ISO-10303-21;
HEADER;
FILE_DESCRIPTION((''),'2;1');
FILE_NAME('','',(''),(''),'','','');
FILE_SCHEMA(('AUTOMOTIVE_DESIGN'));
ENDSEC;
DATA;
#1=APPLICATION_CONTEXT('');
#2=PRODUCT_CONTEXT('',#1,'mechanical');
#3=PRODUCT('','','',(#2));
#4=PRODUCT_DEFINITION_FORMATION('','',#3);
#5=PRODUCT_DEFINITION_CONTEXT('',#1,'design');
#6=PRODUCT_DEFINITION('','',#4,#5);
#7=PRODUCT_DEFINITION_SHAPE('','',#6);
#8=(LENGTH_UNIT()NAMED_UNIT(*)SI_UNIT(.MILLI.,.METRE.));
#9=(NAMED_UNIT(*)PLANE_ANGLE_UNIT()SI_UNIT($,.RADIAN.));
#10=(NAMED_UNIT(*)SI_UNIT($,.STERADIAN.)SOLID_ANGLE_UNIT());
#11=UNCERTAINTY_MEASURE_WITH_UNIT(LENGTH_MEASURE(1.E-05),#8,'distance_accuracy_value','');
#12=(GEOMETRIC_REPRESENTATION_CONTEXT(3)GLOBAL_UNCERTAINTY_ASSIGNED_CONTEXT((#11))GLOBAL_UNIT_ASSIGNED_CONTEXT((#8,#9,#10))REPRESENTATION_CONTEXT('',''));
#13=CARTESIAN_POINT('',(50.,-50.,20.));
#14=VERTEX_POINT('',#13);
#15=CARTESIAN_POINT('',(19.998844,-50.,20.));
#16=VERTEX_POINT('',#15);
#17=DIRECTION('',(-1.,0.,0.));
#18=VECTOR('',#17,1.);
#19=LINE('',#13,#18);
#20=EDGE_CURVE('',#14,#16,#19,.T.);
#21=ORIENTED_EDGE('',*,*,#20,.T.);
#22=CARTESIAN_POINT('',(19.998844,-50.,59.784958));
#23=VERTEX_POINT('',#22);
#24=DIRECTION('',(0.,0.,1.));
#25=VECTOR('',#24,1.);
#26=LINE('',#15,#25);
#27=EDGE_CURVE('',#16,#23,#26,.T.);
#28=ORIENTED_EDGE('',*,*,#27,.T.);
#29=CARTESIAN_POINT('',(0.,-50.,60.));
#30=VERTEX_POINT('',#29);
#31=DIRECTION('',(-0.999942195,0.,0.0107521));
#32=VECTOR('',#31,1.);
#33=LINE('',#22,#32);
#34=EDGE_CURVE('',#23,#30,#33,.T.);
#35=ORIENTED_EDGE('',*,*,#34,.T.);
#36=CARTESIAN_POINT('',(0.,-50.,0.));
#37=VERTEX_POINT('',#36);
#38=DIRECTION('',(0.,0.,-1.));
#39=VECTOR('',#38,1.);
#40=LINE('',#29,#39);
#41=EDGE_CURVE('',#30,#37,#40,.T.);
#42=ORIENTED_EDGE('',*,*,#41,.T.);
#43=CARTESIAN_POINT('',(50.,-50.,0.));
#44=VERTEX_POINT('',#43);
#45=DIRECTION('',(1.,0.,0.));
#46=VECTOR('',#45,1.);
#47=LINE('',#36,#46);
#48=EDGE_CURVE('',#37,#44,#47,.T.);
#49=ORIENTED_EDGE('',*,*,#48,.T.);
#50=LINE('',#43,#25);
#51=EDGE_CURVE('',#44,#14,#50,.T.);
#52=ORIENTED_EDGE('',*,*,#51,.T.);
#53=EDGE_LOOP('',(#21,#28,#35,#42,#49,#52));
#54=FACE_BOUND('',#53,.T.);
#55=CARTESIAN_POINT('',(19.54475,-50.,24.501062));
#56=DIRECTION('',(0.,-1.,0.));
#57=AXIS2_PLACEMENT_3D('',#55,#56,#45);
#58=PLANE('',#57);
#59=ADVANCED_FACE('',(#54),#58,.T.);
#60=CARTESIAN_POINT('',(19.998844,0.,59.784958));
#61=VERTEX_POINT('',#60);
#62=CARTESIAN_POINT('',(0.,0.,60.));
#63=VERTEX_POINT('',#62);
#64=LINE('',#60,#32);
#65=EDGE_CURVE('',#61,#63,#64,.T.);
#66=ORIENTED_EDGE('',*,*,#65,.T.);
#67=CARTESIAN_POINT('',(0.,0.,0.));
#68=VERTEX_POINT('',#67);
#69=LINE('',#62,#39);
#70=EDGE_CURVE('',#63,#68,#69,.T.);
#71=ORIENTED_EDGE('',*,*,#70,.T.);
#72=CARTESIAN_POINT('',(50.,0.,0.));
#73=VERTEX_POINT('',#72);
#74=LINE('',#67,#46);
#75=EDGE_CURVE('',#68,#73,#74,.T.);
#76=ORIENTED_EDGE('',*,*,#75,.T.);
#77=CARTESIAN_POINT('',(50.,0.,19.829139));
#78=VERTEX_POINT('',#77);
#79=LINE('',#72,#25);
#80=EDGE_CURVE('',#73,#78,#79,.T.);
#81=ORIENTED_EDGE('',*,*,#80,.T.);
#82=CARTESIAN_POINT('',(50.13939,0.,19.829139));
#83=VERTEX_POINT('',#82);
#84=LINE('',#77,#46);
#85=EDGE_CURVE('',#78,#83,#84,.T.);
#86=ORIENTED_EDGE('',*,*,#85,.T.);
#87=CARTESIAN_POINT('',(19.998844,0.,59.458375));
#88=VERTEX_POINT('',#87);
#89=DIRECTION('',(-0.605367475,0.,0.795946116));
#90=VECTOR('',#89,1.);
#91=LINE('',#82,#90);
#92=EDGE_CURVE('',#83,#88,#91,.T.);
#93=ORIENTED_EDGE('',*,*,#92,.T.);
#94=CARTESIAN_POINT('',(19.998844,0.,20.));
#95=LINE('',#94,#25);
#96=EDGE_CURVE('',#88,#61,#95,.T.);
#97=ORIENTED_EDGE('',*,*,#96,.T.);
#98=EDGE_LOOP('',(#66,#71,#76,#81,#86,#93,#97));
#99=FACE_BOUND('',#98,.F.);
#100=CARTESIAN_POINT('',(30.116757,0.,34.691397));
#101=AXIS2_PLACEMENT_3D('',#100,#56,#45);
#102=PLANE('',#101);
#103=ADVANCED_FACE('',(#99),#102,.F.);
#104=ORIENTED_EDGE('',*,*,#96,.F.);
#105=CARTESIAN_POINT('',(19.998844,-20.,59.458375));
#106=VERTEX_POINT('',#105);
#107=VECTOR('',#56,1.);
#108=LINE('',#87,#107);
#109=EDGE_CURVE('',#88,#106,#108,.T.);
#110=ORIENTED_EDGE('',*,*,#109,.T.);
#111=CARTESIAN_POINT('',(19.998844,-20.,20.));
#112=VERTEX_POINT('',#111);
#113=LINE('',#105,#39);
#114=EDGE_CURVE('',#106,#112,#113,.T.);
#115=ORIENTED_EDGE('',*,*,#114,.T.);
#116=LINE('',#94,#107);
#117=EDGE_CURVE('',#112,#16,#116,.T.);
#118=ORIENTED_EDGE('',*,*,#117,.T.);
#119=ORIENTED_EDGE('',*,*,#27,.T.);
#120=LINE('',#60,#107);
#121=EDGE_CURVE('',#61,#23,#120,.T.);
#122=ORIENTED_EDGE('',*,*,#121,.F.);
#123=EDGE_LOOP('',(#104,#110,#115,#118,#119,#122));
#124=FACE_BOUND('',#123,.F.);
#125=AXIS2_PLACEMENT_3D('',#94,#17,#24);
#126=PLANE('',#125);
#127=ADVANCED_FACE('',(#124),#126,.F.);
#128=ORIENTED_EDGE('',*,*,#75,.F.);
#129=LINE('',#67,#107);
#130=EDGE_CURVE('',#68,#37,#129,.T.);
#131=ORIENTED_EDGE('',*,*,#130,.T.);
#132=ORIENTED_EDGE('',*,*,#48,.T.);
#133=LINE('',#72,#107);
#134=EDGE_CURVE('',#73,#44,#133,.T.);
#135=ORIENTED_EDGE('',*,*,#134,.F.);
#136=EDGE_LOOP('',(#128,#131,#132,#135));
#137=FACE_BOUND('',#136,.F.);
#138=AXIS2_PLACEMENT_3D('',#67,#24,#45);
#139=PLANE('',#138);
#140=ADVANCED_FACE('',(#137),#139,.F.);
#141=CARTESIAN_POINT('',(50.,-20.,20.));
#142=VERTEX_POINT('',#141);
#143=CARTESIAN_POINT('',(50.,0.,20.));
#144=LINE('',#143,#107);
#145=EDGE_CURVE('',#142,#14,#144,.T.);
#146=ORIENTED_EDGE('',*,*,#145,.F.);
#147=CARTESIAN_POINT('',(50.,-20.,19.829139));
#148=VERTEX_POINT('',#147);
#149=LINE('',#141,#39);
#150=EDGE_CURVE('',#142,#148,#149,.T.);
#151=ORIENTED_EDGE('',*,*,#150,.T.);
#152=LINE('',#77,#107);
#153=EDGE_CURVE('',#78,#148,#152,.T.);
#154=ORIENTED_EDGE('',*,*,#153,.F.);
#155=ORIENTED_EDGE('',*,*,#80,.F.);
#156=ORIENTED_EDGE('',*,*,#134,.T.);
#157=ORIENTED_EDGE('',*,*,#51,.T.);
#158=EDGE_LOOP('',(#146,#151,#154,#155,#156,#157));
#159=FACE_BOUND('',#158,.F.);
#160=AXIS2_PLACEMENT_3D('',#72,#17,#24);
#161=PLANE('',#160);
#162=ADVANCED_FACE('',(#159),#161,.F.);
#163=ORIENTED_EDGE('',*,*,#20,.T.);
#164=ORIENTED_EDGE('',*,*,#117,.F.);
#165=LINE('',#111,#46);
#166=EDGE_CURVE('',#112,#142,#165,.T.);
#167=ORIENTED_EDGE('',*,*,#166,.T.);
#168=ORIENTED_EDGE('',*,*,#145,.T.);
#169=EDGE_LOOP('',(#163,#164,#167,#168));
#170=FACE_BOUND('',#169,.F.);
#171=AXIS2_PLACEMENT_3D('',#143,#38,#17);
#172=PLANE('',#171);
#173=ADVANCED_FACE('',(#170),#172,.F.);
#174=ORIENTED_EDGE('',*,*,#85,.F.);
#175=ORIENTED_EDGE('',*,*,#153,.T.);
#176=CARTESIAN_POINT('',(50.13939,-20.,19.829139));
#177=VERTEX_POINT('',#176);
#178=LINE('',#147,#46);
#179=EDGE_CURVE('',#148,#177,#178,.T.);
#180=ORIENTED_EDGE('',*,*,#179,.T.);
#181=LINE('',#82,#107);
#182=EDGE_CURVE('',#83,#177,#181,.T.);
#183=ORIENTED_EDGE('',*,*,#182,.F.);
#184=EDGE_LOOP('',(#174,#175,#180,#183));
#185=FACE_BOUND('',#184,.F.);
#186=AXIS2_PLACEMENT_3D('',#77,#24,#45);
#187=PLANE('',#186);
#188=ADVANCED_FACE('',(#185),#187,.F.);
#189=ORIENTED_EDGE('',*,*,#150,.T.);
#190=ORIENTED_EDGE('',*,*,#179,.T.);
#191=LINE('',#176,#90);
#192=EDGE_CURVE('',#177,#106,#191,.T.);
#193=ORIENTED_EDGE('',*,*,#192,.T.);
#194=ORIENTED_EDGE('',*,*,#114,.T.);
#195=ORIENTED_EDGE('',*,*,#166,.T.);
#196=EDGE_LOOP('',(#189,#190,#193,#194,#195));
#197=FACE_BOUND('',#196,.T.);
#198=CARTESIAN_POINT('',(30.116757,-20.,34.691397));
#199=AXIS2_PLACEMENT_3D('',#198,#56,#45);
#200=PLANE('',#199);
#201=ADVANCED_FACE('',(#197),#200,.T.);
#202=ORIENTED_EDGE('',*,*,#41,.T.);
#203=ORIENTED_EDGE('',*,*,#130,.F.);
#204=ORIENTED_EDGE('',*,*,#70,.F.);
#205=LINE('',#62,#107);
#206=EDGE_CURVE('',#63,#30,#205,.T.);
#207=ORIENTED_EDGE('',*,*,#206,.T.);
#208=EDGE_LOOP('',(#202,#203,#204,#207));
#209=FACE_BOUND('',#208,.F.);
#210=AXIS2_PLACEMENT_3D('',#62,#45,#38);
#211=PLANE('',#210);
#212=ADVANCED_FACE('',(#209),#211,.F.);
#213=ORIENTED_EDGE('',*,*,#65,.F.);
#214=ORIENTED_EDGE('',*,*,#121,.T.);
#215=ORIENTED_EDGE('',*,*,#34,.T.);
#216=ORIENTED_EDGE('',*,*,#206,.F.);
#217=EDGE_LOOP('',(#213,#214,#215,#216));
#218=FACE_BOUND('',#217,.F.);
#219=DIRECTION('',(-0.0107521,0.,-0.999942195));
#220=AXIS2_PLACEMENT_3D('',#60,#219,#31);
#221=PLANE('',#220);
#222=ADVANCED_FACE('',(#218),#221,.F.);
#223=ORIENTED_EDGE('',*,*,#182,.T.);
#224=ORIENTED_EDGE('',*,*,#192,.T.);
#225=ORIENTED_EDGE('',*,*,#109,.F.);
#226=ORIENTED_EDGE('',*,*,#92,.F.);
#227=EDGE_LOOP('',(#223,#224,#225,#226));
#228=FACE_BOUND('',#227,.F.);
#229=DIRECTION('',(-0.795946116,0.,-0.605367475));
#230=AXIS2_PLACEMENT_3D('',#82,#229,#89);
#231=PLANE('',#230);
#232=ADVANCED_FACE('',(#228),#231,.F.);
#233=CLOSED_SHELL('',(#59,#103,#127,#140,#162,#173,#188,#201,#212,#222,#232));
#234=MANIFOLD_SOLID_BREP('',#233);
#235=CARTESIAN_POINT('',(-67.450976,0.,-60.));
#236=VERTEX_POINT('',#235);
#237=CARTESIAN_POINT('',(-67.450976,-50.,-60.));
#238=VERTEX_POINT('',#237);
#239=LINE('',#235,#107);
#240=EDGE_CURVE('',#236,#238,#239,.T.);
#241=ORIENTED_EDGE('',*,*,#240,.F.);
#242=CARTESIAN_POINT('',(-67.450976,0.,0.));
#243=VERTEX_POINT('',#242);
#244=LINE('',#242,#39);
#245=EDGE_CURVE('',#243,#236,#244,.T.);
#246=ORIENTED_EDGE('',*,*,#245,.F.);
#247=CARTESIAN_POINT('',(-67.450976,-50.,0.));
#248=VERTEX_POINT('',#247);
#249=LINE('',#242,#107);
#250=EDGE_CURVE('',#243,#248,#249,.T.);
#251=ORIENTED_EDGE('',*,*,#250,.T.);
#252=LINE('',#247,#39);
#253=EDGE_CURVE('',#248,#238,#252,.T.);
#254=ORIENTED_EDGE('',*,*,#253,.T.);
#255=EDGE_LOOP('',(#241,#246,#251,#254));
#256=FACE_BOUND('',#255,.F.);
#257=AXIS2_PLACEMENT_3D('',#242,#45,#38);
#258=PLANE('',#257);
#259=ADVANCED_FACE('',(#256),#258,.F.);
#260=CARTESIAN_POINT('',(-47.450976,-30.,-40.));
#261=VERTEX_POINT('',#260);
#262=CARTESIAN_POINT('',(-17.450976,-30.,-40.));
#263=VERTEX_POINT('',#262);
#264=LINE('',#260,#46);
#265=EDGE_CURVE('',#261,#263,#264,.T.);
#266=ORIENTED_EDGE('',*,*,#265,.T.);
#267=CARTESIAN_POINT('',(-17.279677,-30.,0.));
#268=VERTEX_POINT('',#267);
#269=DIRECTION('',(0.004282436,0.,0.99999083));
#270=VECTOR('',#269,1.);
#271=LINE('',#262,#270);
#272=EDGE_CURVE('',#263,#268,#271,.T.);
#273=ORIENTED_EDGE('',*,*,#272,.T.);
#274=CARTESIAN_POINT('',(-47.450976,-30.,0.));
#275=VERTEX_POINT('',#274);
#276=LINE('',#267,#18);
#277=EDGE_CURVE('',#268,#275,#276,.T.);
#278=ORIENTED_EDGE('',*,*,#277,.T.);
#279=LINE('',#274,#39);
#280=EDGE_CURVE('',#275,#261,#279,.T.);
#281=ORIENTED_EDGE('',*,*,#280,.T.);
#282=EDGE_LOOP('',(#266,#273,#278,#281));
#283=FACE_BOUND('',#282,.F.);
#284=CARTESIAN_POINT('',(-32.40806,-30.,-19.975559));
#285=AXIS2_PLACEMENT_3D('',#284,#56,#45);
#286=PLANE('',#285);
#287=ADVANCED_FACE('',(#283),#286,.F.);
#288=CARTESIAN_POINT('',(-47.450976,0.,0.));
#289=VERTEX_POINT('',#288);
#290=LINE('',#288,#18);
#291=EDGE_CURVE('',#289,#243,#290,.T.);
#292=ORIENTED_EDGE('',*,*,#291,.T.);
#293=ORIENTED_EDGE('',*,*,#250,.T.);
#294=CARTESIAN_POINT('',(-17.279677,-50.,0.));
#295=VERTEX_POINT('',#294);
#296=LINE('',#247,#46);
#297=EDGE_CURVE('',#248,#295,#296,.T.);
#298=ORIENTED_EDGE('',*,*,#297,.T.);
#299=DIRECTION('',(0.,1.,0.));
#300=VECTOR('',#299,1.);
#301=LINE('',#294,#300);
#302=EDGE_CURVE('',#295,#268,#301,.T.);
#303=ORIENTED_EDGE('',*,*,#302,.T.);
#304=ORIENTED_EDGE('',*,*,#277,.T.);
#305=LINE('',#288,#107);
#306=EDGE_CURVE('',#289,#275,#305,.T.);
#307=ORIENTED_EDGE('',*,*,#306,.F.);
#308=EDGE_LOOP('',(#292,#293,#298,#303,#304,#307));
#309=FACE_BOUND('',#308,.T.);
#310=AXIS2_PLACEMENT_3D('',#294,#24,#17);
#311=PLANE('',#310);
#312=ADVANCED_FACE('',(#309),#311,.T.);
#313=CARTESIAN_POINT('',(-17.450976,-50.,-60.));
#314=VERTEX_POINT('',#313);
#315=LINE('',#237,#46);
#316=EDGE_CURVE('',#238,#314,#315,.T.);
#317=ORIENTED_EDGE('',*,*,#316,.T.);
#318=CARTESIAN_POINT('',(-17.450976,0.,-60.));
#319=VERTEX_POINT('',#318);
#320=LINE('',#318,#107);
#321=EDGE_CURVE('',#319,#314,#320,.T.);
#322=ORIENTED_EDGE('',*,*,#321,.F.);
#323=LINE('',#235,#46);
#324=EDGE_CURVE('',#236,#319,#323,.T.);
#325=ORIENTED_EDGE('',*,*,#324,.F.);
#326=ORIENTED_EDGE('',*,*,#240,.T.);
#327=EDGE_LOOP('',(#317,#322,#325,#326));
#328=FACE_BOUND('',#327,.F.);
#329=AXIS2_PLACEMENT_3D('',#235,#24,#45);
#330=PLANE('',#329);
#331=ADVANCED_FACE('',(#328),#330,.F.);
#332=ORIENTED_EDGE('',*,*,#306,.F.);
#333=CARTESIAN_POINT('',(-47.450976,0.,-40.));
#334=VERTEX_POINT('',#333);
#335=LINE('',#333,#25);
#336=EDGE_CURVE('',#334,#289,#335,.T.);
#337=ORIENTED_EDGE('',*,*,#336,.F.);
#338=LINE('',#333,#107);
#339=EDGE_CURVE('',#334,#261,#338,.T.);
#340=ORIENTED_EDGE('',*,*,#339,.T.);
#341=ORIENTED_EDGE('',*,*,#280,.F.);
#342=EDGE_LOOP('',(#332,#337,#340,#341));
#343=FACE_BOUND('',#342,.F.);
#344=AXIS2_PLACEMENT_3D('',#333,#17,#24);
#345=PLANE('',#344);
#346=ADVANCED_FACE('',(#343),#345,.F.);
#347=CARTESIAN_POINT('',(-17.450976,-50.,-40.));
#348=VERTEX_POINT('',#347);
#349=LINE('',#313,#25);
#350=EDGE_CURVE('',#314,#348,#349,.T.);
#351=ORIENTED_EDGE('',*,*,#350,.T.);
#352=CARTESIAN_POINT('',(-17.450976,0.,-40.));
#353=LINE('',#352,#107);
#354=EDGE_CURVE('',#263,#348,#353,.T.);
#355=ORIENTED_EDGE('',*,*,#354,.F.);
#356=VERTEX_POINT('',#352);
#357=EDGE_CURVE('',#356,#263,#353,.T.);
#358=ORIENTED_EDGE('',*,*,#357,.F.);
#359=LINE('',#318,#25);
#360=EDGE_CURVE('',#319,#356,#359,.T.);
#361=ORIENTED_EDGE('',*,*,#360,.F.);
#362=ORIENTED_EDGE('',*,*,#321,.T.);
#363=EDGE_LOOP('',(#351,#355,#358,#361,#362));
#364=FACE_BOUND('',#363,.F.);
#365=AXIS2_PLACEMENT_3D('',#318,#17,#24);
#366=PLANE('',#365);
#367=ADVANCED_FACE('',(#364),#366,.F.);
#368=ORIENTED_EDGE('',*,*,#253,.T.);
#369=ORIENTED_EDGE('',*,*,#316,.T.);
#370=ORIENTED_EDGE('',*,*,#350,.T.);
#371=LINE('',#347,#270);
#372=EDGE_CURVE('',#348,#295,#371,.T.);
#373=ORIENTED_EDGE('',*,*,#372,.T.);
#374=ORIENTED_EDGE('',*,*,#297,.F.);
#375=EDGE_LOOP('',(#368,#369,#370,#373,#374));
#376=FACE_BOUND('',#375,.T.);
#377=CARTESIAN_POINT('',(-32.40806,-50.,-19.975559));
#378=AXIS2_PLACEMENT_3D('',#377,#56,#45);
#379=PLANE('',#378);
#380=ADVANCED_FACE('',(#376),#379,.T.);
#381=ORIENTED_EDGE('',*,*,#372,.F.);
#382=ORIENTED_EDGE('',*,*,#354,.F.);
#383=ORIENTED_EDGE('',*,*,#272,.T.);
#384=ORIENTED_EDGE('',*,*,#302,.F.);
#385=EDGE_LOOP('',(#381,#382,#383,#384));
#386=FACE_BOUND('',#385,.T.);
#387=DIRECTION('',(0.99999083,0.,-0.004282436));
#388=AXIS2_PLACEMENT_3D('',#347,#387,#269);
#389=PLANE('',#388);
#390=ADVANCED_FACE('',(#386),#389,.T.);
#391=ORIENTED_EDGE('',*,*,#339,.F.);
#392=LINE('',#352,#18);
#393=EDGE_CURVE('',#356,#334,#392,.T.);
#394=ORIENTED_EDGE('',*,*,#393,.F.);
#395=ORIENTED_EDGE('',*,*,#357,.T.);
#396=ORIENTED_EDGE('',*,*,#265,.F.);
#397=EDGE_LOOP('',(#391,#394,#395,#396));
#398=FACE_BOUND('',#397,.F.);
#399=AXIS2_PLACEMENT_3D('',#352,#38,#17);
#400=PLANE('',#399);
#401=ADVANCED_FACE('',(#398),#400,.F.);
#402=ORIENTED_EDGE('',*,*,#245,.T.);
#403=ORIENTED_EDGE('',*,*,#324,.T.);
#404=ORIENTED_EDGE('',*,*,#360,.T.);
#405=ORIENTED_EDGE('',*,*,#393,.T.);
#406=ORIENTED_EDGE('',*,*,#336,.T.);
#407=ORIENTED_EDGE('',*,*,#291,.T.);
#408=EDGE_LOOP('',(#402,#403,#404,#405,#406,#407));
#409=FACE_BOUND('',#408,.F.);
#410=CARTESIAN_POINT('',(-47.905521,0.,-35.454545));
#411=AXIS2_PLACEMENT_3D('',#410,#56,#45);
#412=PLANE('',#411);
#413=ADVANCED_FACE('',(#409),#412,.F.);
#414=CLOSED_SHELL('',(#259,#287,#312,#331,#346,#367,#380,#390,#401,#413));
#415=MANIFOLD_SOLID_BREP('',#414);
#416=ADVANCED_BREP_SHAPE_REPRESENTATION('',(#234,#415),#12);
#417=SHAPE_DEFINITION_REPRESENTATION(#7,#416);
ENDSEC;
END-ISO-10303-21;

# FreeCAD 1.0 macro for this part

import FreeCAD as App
import Part
import Sketcher
from FreeCAD import Vector
Q = App.Units.Quantity

doc = App.newDocument("Part")
body = doc.addObject("PartDesign::Body", "Body")

# Sketch on XZ plane
sketch1 = body.newObject("Sketcher::SketchObject", "Sketch")
sketch1.AttachmentSupport = (doc.getObject("XZ_Plane"), [""])
sketch1.MapMode = "FlatFace"
sketch1.addGeometry([
    Part.LineSegment(Vector(0, 60, 0), Vector(0, 0, 0)),  # 0
    Part.LineSegment(Vector(0, 0, 0), Vector(50, 0, 0)),  # 1
    Part.LineSegment(Vector(50, 0, 0), Vector(50, 20, 0)),  # 2
    Part.LineSegment(Vector(50, 20, 0), Vector(20, 20, 0)),  # 3
    Part.LineSegment(Vector(20, 20, 0), Vector(20, 60, 0)),  # 4
    Part.LineSegment(Vector(20, 60, 0), Vector(0, 60, 0)),  # 5
], False)
sketch1.addConstraint([
    Sketcher.Constraint("Coincident", 0, 2, 1, 1),
    Sketcher.Constraint("Coincident", 1, 2, 2, 1),
    Sketcher.Constraint("Coincident", 2, 2, 3, 1),
    Sketcher.Constraint("Coincident", 3, 2, 4, 1),
    Sketcher.Constraint("Coincident", 4, 2, 5, 1),
    Sketcher.Constraint("Coincident", 5, 2, 0, 1),
    Sketcher.Constraint("Vertical", 0),
    Sketcher.Constraint("Horizontal", 1),
    Sketcher.Constraint("Vertical", 2),
    Sketcher.Constraint("Horizontal", 3),
    Sketcher.Constraint("Vertical", 4),
    Sketcher.Constraint("Coincident", 0, 2, -1, 1),
    Sketcher.Constraint("DistanceX", 1, 1, 1, 2, Q("50 mm")),
    Sketcher.Constraint("DistanceY", 0, 2, 0, 1, Q("60 mm")),
    Sketcher.Constraint("DistanceY", 2, 1, 2, 2, Q("20 mm")),
    Sketcher.Constraint("Distance", 5, Q("20 mm")),
    Sketcher.Constraint("DistanceY", 4, 1, 4, 2, Q("39.784958 mm")),
])
pad1 = body.newObject("PartDesign::Pad", "Pad")
pad1.Profile = sketch1
pad1.Length = 50

# Sketch on XZ plane
sketch2 = body.newObject("Sketcher::SketchObject", "Sketch001")
sketch2.AttachmentSupport = (doc.getObject("XZ_Plane"), [""])
sketch2.MapMode = "FlatFace"
sketch2.addGeometry([
    Part.LineSegment(Vector(50.14, 19.83, 0), Vector(20, 59.46, 0)),  # 0
    Part.LineSegment(Vector(20, 59.46, 0), Vector(20, 20, 0)),  # 1
    Part.LineSegment(Vector(20, 20, 0), Vector(50, 20, 0)),  # 2
    Part.LineSegment(Vector(50, 20, 0), Vector(50, 19.83, 0)),  # 3
    Part.LineSegment(Vector(50, 19.83, 0), Vector(50.14, 19.83, 0)),  # 4
], False)
sketch2.addConstraint([
    Sketcher.Constraint("Coincident", 0, 2, 1, 1),
    Sketcher.Constraint("Coincident", 1, 2, 2, 1),
    Sketcher.Constraint("Coincident", 2, 2, 3, 1),
    Sketcher.Constraint("Coincident", 3, 2, 4, 1),
    Sketcher.Constraint("Coincident", 4, 2, 0, 1),
    Sketcher.Constraint("Vertical", 1),
    Sketcher.Constraint("Horizontal", 2),
    Sketcher.Constraint("Vertical", 3),
    Sketcher.Constraint("Horizontal", 4),
    Sketcher.Constraint("DistanceY", -1, 1, 1, 2, Q("20 mm")),
    Sketcher.Constraint("DistanceX", -1, 1, 2, 2, Q("50 mm")),
    Sketcher.Constraint("DistanceX", 4, 1, 4, 2, Q("0.13939 mm")),
    Sketcher.Constraint("DistanceY", 3, 2, 3, 1, Q("0.170861 mm")),
    Sketcher.Constraint("DistanceX", 2, 1, 2, 2, Q("30.001156 mm")),
    Sketcher.Constraint("DistanceY", 1, 2, 1, 1, Q("39.458375 mm")),
])
pad2 = body.newObject("PartDesign::Pad", "Pad001")
pad2.Profile = sketch2
pad2.Length = 20
body2 = doc.addObject("PartDesign::Body", "Body001")

# Sketch on XZ plane
sketch3 = body2.newObject("Sketcher::SketchObject", "Sketch002")
sketch3.AttachmentSupport = (doc.getObject("XZ_Plane001"), [""])
sketch3.MapMode = "FlatFace"
sketch3.addGeometry([
    Part.LineSegment(Vector(-47, 0, 0), Vector(-67, 0, 0)),  # 0
    Part.LineSegment(Vector(-67, 0, 0), Vector(-67, -60, 0)),  # 1
    Part.LineSegment(Vector(-67, -60, 0), Vector(-17, -60, 0)),  # 2
    Part.LineSegment(Vector(-17, -60, 0), Vector(-17, -40, 0)),  # 3
    Part.LineSegment(Vector(-17, -40, 0), Vector(-47, -40, 0)),  # 4
    Part.LineSegment(Vector(-47, -40, 0), Vector(-47, 0, 0)),  # 5
], False)
sketch3.addConstraint([
    Sketcher.Constraint("Coincident", 0, 2, 1, 1),
    Sketcher.Constraint("Coincident", 1, 2, 2, 1),
    Sketcher.Constraint("Coincident", 2, 2, 3, 1),
    Sketcher.Constraint("Coincident", 3, 2, 4, 1),
    Sketcher.Constraint("Coincident", 4, 2, 5, 1),
    Sketcher.Constraint("Coincident", 5, 2, 0, 1),
    Sketcher.Constraint("Horizontal", 0),
    Sketcher.Constraint("Vertical", 1),
    Sketcher.Constraint("Horizontal", 2),
    Sketcher.Constraint("Vertical", 3),
    Sketcher.Constraint("Horizontal", 4),
    Sketcher.Constraint("Vertical", 5),
    Sketcher.Constraint("PointOnObject", 0, 2, -1),
    Sketcher.Constraint("Equal", 0, 3),
    Sketcher.Constraint("DistanceX", 0, 2, 0, 1, Q("20 mm")),
    Sketcher.Constraint("DistanceX", 2, 1, 2, 2, Q("50 mm")),
    Sketcher.Constraint("DistanceY", 1, 2, 1, 1, Q("60 mm")),
    Sketcher.Constraint("DistanceX", 0, 2, -1, 1, Q("67.450976 mm")),
])
pad3 = body2.newObject("PartDesign::Pad", "Pad002")
pad3.Profile = sketch3
pad3.Length = 50

# Sketch on XZ plane
sketch4 = body2.newObject("Sketcher::SketchObject", "Sketch003")
sketch4.AttachmentSupport = (doc.getObject("XZ_Plane001"), [""])
sketch4.MapMode = "FlatFace"
sketch4.AttachmentOffset = App.Placement(Vector(0, 0, 50), App.Rotation())
sketch4.addGeometry([
    Part.LineSegment(Vector(-17, 0, 0), Vector(-47, 0, 0)),
    Part.LineSegment(Vector(-47, 0, 0), Vector(-47, -40, 0)),
    Part.LineSegment(Vector(-47, -40, 0), Vector(-17, -40, 0)),
    Part.LineSegment(Vector(-17, -40, 0), Vector(-17, 0, 0)),
], False)
sketch4.addConstraint([
    Sketcher.Constraint("Coincident", 0, 2, 1, 1),
    Sketcher.Constraint("Coincident", 1, 2, 2, 1),
    Sketcher.Constraint("Coincident", 2, 2, 3, 1),
    Sketcher.Constraint("Coincident", 3, 2, 0, 1),
    Sketcher.Constraint("Horizontal", 0),
    Sketcher.Constraint("Vertical", 1),
    Sketcher.Constraint("Horizontal", 2),
    Sketcher.Constraint("PointOnObject", 0, 2, -1),
    Sketcher.Constraint("DistanceX", 2, 1, 2, 2, Q("30 mm")),
    Sketcher.Constraint("DistanceY", 1, 2, 1, 1, Q("40 mm")),
    Sketcher.Constraint("DistanceX", 0, 2, 0, 1, Q("30.171299 mm")),
    Sketcher.Constraint("DistanceX", 0, 2, -1, 1, Q("47.450976 mm")),
])
pad4 = body2.newObject("PartDesign::Pad", "Pad003")
pad4.Profile = sketch4
pad4.Length = 20
pad4.Reversed = True

doc.recompute()
